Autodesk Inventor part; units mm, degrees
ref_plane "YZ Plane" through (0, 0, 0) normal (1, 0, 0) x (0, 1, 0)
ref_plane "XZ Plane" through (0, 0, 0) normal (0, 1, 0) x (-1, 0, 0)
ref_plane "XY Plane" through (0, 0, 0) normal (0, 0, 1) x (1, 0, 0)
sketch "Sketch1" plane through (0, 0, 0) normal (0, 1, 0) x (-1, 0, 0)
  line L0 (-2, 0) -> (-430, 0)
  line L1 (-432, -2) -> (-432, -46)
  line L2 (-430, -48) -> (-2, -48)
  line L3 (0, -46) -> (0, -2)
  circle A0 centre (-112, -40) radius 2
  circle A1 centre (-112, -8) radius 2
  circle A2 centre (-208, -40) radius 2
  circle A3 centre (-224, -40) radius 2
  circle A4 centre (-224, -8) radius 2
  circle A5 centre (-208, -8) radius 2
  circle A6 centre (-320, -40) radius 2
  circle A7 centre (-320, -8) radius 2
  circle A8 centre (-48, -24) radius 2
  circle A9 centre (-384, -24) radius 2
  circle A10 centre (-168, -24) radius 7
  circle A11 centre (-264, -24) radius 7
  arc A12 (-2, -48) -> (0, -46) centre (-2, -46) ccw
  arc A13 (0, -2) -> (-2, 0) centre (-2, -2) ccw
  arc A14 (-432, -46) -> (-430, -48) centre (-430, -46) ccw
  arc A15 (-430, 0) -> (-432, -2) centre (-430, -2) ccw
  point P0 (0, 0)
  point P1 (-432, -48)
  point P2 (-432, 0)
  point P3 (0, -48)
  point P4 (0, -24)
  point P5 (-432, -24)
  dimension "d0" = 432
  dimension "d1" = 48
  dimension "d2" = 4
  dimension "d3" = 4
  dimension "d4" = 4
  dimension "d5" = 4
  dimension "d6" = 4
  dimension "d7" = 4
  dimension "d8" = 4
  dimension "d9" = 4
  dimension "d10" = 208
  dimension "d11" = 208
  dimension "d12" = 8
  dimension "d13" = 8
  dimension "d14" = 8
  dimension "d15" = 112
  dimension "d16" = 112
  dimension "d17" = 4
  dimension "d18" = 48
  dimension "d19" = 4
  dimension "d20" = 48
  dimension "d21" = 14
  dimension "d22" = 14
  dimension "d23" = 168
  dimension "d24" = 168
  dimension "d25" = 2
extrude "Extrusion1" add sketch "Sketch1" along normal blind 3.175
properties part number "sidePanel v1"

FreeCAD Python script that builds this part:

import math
import FreeCAD as App
import Part
import Sketcher
from FreeCAD import Vector

doc = App.newDocument("Part")
body = doc.addObject("PartDesign::Body", "Body")

sketch1 = doc.addObject("Sketcher::SketchObject", "Sketch")
body.addObject(sketch1)
sketch1.AttachmentSupport = (doc.XZ_Plane, [""])
sketch1.MapMode = "FlatFace"
sketch1.addGeometry([
    Part.ArcOfCircle(Part.Circle(Vector(2, -2, 0), Vector(0, 0, 1), 2), math.radians(90), math.radians(180)),
    Part.LineSegment(Vector(2, 0, 0), Vector(430, 0, 0)),
    Part.ArcOfCircle(Part.Circle(Vector(430, -2, 0), Vector(0, 0, 1), 2), math.radians(0), math.radians(90)),
    Part.LineSegment(Vector(432, -2, 0), Vector(432, -46, 0)),
    Part.ArcOfCircle(Part.Circle(Vector(430, -46, 0), Vector(0, 0, 1), 2), math.radians(-90), math.radians(0)),
    Part.LineSegment(Vector(430, -48, 0), Vector(2, -48, 0)),
    Part.ArcOfCircle(Part.Circle(Vector(2, -46, 0), Vector(0, 0, 1), 2), math.radians(180), math.radians(270)),
    Part.LineSegment(Vector(0, -46, 0), Vector(0, -2, 0)),
    Part.Circle(Vector(320, -40, 0), Vector(0, 0, 1), 2),
    Part.Circle(Vector(224, -40, 0), Vector(0, 0, 1), 2),
    Part.Circle(Vector(208, -40, 0), Vector(0, 0, 1), 2),
    Part.Circle(Vector(112, -40, 0), Vector(0, 0, 1), 2),
    Part.Circle(Vector(384, -24, 0), Vector(0, 0, 1), 2),
    Part.Circle(Vector(264, -24, 0), Vector(0, 0, 1), 7),
    Part.Circle(Vector(320, -8, 0), Vector(0, 0, 1), 2),
    Part.Circle(Vector(224, -8, 0), Vector(0, 0, 1), 2),
    Part.Circle(Vector(168, -24, 0), Vector(0, 0, 1), 7),
    Part.Circle(Vector(48, -24, 0), Vector(0, 0, 1), 2),
    Part.Circle(Vector(208, -8, 0), Vector(0, 0, 1), 2),
    Part.Circle(Vector(112, -8, 0), Vector(0, 0, 1), 2),
], False)
sketch1.addConstraint([
    Sketcher.Constraint("Tangent", 0, 1, 1, 1),
    Sketcher.Constraint("Tangent", 1, 2, 2, 2),
    Sketcher.Constraint("Tangent", 2, 1, 3, 1),
    Sketcher.Constraint("Tangent", 3, 2, 4, 2),
    Sketcher.Constraint("Tangent", 4, 1, 5, 1),
    Sketcher.Constraint("Tangent", 5, 2, 6, 2),
    Sketcher.Constraint("Tangent", 6, 1, 7, 1),
    Sketcher.Constraint("Tangent", 7, 2, 0, 2),
    Sketcher.Constraint("Horizontal", 1),
    Sketcher.Constraint("Vertical", 3),
    Sketcher.Constraint("Horizontal", 5),
    Sketcher.Constraint("Vertical", 7),
    Sketcher.Constraint("Equal", 0, 2),
    Sketcher.Constraint("Equal", 2, 4),
    Sketcher.Constraint("Equal", 4, 6),
    Sketcher.Constraint("Equal", 6, 8),
    Sketcher.Constraint("Equal", 8, 9),
    Sketcher.Constraint("Equal", 9, 10),
    Sketcher.Constraint("Equal", 10, 11),
    Sketcher.Constraint("Equal", 11, 12),
    Sketcher.Constraint("Equal", 12, 14),
    Sketcher.Constraint("Equal", 14, 15),
    Sketcher.Constraint("Equal", 13, 16),
    Sketcher.Constraint("Equal", 15, 17),
    Sketcher.Constraint("Equal", 17, 18),
    Sketcher.Constraint("Equal", 18, 19),
    Sketcher.Constraint("PointOnObject", 0, 1, -1),
    Sketcher.Constraint("PointOnObject", 6, 1, -2),
    Sketcher.Constraint("Horizontal", 8, 3, 9, 3),
    Sketcher.Constraint("Horizontal", 9, 3, 10, 3),
    Sketcher.Constraint("Horizontal", 10, 3, 11, 3),
    Sketcher.Constraint("Horizontal", 12, 3, 13, 3),
    Sketcher.Constraint("Horizontal", 14, 3, 15, 3),
    Sketcher.Constraint("Horizontal", 13, 3, 16, 3),
    Sketcher.Constraint("Horizontal", 16, 3, 17, 3),
    Sketcher.Constraint("Horizontal", 15, 3, 18, 3),
    Sketcher.Constraint("Horizontal", 18, 3, 19, 3),
    Sketcher.Constraint("Vertical", 8, 3, 14, 3),
    Sketcher.Constraint("Vertical", 9, 3, 15, 3),
    Sketcher.Constraint("Vertical", 10, 3, 18, 3),
    Sketcher.Constraint("Vertical", 11, 3, 19, 3),
    Sketcher.Constraint("Diameter", 8, 4.0),
    Sketcher.Constraint("Diameter", 13, 14.0),
    Sketcher.Constraint("DistanceX", -1, 1, 10, 3, 208.0),
    Sketcher.Constraint("DistanceX", -1, 1, 11, 3, 112.0),
    Sketcher.Constraint("DistanceY", 14, 3, -1, 1, 8.0),
    Sketcher.Constraint("DistanceX", -1, 1, 16, 3, 168.0),
    Sketcher.Constraint("DistanceX", -1, 1, 17, 3, 48.0),
    Sketcher.Constraint("DistanceX", -1, 1, 2, 1, 432.0),
    Sketcher.Constraint("DistanceY", 4, 1, -1, 1, 48.0),
    Sketcher.Constraint("DistanceX", 10, 3, 8, 3, 112.0),
    Sketcher.Constraint("DistanceX", 11, 3, 9, 3, 112.0),
    Sketcher.Constraint("DistanceX", 12, 3, 2, 1, 48.0),
    Sketcher.Constraint("DistanceY", 5, 2, 11, 3, 8.0),
    Sketcher.Constraint("DistanceY", 12, 3, -1, 1, 24.0),
    Sketcher.Constraint("DistanceX", -1, 1, 13, 3, 264.0),
])
pad1 = doc.addObject("PartDesign::Pad", "Pad")
body.addObject(pad1)
pad1.Profile = sketch1
pad1.Length = 3.175
pad1.Reversed = True

doc.recompute()
